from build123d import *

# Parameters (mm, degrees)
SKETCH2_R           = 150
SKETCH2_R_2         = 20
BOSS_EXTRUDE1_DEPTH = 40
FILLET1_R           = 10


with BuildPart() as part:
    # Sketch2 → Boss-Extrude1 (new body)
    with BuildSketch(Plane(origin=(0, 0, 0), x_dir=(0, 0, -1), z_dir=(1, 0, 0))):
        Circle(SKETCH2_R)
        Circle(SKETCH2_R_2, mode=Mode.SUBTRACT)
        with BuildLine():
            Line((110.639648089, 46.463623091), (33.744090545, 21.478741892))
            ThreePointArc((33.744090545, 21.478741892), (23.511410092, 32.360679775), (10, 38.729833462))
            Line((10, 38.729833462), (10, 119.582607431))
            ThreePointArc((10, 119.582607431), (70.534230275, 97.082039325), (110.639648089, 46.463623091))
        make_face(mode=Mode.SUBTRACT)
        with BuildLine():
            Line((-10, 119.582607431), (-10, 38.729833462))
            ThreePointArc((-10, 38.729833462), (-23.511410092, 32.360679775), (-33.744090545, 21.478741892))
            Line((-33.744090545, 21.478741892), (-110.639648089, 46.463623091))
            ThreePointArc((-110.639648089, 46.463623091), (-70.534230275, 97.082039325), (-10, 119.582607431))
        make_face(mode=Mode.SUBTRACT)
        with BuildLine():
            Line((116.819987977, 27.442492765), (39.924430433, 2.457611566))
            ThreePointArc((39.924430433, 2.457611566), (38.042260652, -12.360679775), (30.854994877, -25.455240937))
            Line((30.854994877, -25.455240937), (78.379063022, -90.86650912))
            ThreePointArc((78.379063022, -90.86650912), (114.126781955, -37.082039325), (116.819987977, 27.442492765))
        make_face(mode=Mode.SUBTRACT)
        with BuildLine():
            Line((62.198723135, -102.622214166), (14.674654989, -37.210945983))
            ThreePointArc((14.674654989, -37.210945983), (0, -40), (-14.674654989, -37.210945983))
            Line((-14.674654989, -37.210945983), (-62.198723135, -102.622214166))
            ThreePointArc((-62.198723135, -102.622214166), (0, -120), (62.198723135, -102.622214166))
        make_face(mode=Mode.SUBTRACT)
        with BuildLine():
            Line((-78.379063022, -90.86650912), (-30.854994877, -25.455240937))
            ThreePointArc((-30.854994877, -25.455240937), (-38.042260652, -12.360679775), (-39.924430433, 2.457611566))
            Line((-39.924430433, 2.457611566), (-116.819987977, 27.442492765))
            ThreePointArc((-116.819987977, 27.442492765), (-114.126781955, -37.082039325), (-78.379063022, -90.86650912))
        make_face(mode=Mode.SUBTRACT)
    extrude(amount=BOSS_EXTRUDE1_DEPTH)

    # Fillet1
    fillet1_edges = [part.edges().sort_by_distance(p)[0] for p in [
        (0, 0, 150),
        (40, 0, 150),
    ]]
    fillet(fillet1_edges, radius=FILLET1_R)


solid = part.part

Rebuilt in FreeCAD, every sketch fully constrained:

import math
import FreeCAD as App
import Part
import Sketcher
from FreeCAD import Vector
Q = App.Units.Quantity


def edges_at(feature, points):
    """Names of the edges that pass closest to the given points."""
    edges = feature.Shape.Edges
    near = lambda p: min(range(len(edges)), key=lambda i: edges[i].distToShape(Part.Vertex(*p))[0])
    return sorted({f"Edge{near(p) + 1}" for p in points})

doc = App.newDocument("Part")
body = doc.addObject("PartDesign::Body", "Body")

# Sketch on YZ plane
sketch1 = body.newObject("Sketcher::SketchObject", "Sketch")
sketch1.AttachmentSupport = (doc.getObject("YZ_Plane"), [""])
sketch1.MapMode = "FlatFace"
sketch1.addGeometry([
    Part.Circle(Vector(0, 0, 0), Vector(0, 0, 1), 150),  # 0
    Part.LineSegment(Vector(-37, -15, 0), Vector(-103, -62, 0)),  # 1
    Part.ArcOfCircle(Part.Circle(Vector(0, 0, 0), Vector(0, 0, 1), 120), math.radians(149), math.radians(211)),  # 2
    Part.LineSegment(Vector(-103, 62, 0), Vector(-37, 15, 0)),  # 3
    Part.ArcOfCircle(Part.Circle(Vector(0, 0, 0), Vector(0, 0, 1), 40), math.radians(158), math.radians(202)),  # 4
    Part.LineSegment(Vector(-25, 31, 0), Vector(-91, 78, 0)),  # 5
    Part.ArcOfCircle(Part.Circle(Vector(0, 0, 0), Vector(0, 0, 1), 120), math.radians(77), math.radians(139)),  # 6
    Part.LineSegment(Vector(27, 117, 0), Vector(2, 40, 0)),  # 7
    Part.ArcOfCircle(Part.Circle(Vector(0, 0, 0), Vector(0, 0, 1), 40), math.radians(86), math.radians(130)),  # 8
    Part.LineSegment(Vector(2, -40, 0), Vector(27, -117, 0)),  # 9
    Part.ArcOfCircle(Part.Circle(Vector(0, 0, 0), Vector(0, 0, 1), 120), math.radians(-139), math.radians(-77)),  # 10
    Part.LineSegment(Vector(-91, -78, 0), Vector(-25, -31, 0)),  # 11
    Part.ArcOfCircle(Part.Circle(Vector(0, 0, 0), Vector(0, 0, 1), 40), math.radians(-130), math.radians(-86)),  # 12
    Part.Circle(Vector(0, 0, 0), Vector(0, 0, 1), 20),  # 13
    Part.ArcOfCircle(Part.Circle(Vector(0, 0, 0), Vector(0, 0, 1), 120), math.radians(5), math.radians(67)),  # 14
    Part.LineSegment(Vector(120, 10, 0), Vector(39, 10, 0)),  # 15
    Part.ArcOfCircle(Part.Circle(Vector(0, 0, 0), Vector(0, 0, 1), 40), math.radians(14), math.radians(58)),  # 16
    Part.LineSegment(Vector(21, 34, 0), Vector(46, 111, 0)),  # 17
    Part.ArcOfCircle(Part.Circle(Vector(0, 0, 0), Vector(0, 0, 1), 120), math.radians(-67), math.radians(-5)),  # 18
    Part.LineSegment(Vector(46, -111, 0), Vector(21, -34, 0)),  # 19
    Part.ArcOfCircle(Part.Circle(Vector(0, 0, 0), Vector(0, 0, 1), 40), math.radians(-58), math.radians(-14)),  # 20
    Part.LineSegment(Vector(39, -10, 0), Vector(120, -10, 0)),  # 21
], False)
sketch1.addConstraint([
    Sketcher.Constraint("Coincident", 1, 2, 2, 2),
    Sketcher.Constraint("Coincident", 2, 1, 3, 1),
    Sketcher.Constraint("Coincident", 3, 2, 4, 1),
    Sketcher.Constraint("Coincident", 4, 2, 1, 1),
    Sketcher.Constraint("Coincident", 5, 2, 6, 2),
    Sketcher.Constraint("Coincident", 6, 1, 7, 1),
    Sketcher.Constraint("Coincident", 7, 2, 8, 1),
    Sketcher.Constraint("Coincident", 8, 2, 5, 1),
    Sketcher.Constraint("Coincident", 9, 2, 10, 2),
    Sketcher.Constraint("Coincident", 10, 1, 11, 1),
    Sketcher.Constraint("Coincident", 11, 2, 12, 1),
    Sketcher.Constraint("Coincident", 12, 2, 9, 1),
    Sketcher.Constraint("Coincident", 14, 1, 15, 1),
    Sketcher.Constraint("Coincident", 15, 2, 16, 1),
    Sketcher.Constraint("Coincident", 16, 2, 17, 1),
    Sketcher.Constraint("Coincident", 17, 2, 14, 2),
    Sketcher.Constraint("Coincident", 18, 1, 19, 1),
    Sketcher.Constraint("Coincident", 19, 2, 20, 1),
    Sketcher.Constraint("Coincident", 20, 2, 21, 1),
    Sketcher.Constraint("Coincident", 21, 2, 18, 2),
    Sketcher.Constraint("Horizontal", 15),
    Sketcher.Constraint("Horizontal", 21),
    Sketcher.Constraint("Coincident", 0, 3, -1, 1),
    Sketcher.Constraint("Coincident", 2, 3, -1, 1),
    Sketcher.Constraint("Coincident", 4, 3, -1, 1),
    Sketcher.Constraint("Coincident", 6, 3, -1, 1),
    Sketcher.Constraint("Coincident", 8, 3, -1, 1),
    Sketcher.Constraint("Coincident", 10, 3, -1, 1),
    Sketcher.Constraint("Coincident", 12, 3, -1, 1),
    Sketcher.Constraint("Coincident", 13, 3, -1, 1),
    Sketcher.Constraint("Coincident", 14, 3, -1, 1),
    Sketcher.Constraint("Coincident", 16, 3, -1, 1),
    Sketcher.Constraint("Coincident", 18, 3, -1, 1),
    Sketcher.Constraint("Coincident", 20, 3, -1, 1),
    Sketcher.Constraint("Equal", 2, 6),
    Sketcher.Constraint("Equal", 4, 8),
    Sketcher.Constraint("Equal", 6, 10),
    Sketcher.Constraint("Equal", 8, 12),
    Sketcher.Constraint("Equal", 10, 14),
    Sketcher.Constraint("Equal", 12, 16),
    Sketcher.Constraint("Equal", 14, 18),
    Sketcher.Constraint("Equal", 16, 20),
    Sketcher.Constraint("Parallel", 3, 5),
    Sketcher.Constraint("Parallel", 1, 11),
    Sketcher.Constraint("Parallel", 7, 17),
    Sketcher.Constraint("Parallel", 9, 19),
    Sketcher.Constraint("Vertical", 1, 2, 2, 1),
    Sketcher.Constraint("Vertical", 3, 2, 4, 2),
    Sketcher.Constraint("Vertical", 6, 1, 9, 2),
    Sketcher.Constraint("Vertical", 5, 2, 10, 1),
    Sketcher.Constraint("Vertical", 7, 2, 12, 2),
    Sketcher.Constraint("Vertical", 17, 2, 18, 1),
    Sketcher.Constraint("Vertical", 15, 2, 20, 2),
    Sketcher.Constraint("Equal", 3, 5),
    Sketcher.Constraint("Equal", 5, 7),
    Sketcher.Constraint("Equal", 11, 17),
    Sketcher.Constraint("Diameter", 0, 300.0),
    Sketcher.Constraint("Diameter", 13, 40.0),
    Sketcher.Constraint("Radius", 2, 120.0),
    Sketcher.Constraint("Radius", 4, 40.0),
    Sketcher.Constraint("Angle", 1, Q("-144 deg")),
    Sketcher.Constraint("Angle", 7, Q("-108 deg")),
    Sketcher.Constraint("DistanceY", -1, 1, 14, 1, 10.0),
    Sketcher.Constraint("DistanceX", 5, 2, -1, 1, 90.866509),
])
pad1 = body.newObject("PartDesign::Pad", "Pad")
pad1.Profile = sketch1
pad1.Length = 40
doc.recompute()

fillet = body.newObject("PartDesign::Fillet", "Fillet")
fillet.Base = (pad1, edges_at(pad1, [(0, 0, 150), (40, 0, 150)]))
fillet.Radius = 10

doc.recompute()
